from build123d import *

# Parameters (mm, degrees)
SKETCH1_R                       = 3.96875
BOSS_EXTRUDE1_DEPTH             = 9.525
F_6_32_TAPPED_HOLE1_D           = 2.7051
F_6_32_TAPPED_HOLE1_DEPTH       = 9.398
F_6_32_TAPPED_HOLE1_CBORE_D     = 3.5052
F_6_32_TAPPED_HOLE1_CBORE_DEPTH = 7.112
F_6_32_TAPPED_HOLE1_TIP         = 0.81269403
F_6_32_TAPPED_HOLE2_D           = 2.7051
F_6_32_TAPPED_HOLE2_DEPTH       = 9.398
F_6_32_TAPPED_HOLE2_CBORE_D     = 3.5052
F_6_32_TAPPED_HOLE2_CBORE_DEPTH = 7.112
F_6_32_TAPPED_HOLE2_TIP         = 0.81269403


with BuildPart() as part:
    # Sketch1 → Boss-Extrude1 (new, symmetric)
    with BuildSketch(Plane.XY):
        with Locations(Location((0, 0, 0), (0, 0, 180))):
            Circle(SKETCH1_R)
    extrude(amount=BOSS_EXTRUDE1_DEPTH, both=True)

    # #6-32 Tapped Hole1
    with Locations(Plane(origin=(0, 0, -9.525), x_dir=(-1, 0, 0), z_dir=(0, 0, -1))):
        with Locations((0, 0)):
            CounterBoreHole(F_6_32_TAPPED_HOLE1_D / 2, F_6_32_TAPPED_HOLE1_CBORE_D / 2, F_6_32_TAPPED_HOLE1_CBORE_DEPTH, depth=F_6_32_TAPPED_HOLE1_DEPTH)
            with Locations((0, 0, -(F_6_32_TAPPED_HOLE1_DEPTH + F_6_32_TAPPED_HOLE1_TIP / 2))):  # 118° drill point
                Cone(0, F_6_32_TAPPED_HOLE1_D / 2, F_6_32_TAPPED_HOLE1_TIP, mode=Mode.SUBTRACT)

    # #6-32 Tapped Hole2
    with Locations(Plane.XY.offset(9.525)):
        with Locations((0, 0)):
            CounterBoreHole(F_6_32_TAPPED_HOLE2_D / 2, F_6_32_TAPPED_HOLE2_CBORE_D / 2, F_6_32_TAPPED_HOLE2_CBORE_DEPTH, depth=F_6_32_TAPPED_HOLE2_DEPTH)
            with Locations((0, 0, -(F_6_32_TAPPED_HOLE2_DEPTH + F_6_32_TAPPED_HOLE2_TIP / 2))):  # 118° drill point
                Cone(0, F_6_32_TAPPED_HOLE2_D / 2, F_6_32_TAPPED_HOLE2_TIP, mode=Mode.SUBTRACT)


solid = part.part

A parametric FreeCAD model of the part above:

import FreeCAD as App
import Part
import Sketcher
Q = App.Units.Quantity

doc = App.newDocument("Part")
body = doc.addObject("PartDesign::Body", "Body")

# Sketch on XY plane
sketch1 = body.newObject("Sketcher::SketchObject", "Sketch")
sketch1.AttachmentSupport = (doc.getObject("XY_Plane"), [""])
sketch1.MapMode = "FlatFace"
sketch1.addGeometry(Part.Circle(App.Vector(0, 0, 0), App.Vector(0, 0, 1), 4), False)
sketch1.addConstraint(Sketcher.Constraint("Coincident", 0, 3, -1, 1))
sketch1.addConstraint(Sketcher.Constraint("Diameter", 0, Q("0.3125 in")))
pad1 = body.newObject("PartDesign::Pad", "Pad")
pad1.Profile = sketch1
pad1.Length = Q("0.75 in")
pad1.Midplane = True

# Sketch on XY plane
sketch2 = body.newObject("Sketcher::SketchObject", "Sketch001")
sketch2.AttachmentSupport = (doc.getObject("XY_Plane"), [""])
sketch2.MapMode = "FlatFace"
sketch2.AttachmentOffset = App.Placement(App.Vector(0, 0, -0.375 * 25.4), App.Rotation())
sketch2.addGeometry(Part.Circle(App.Vector(0, 0, 0), App.Vector(0, 0, 1), 1.4), False)
sketch2.addConstraint(Sketcher.Constraint("Coincident", 0, 3, -1, 1))
sketch2.addConstraint(Sketcher.Constraint("Diameter", 0, Q("0.1065 in")))
doc.recompute()
hole = body.newObject("PartDesign::Hole", "Hole")
hole.Profile = sketch2
hole.ThreadType = "None"
hole.Diameter = Q("0.1065 in")
hole.DepthType = "Dimension"
hole.Depth = Q("0.37 in")
hole.DrillPoint = "Angled"
hole.DrillPointAngle = 118
hole.HoleCutType = "Counterbore"
hole.HoleCutDiameter = Q("0.138 in")
hole.HoleCutDepth = Q("0.28 in")
hole.Reversed = True

# Sketch on XY plane
sketch3 = body.newObject("Sketcher::SketchObject", "Sketch002")
sketch3.AttachmentSupport = (doc.getObject("XY_Plane"), [""])
sketch3.MapMode = "FlatFace"
sketch3.AttachmentOffset = App.Placement(App.Vector(0, 0, 0.375 * 25.4), App.Rotation())
sketch3.addGeometry(Part.Circle(App.Vector(0, 0, 0), App.Vector(0, 0, 1), 1.4), False)
sketch3.addConstraint(Sketcher.Constraint("Coincident", 0, 3, -1, 1))
sketch3.addConstraint(Sketcher.Constraint("Diameter", 0, Q("0.1065 in")))
doc.recompute()
hole2 = body.newObject("PartDesign::Hole", "Hole001")
hole2.Profile = sketch3
hole2.ThreadType = "None"
hole2.Diameter = Q("0.1065 in")
hole2.DepthType = "Dimension"
hole2.Depth = Q("0.37 in")
hole2.DrillPoint = "Angled"
hole2.DrillPointAngle = 118
hole2.HoleCutType = "Counterbore"
hole2.HoleCutDiameter = Q("0.138 in")
hole2.HoleCutDepth = Q("0.28 in")

doc.recompute()
